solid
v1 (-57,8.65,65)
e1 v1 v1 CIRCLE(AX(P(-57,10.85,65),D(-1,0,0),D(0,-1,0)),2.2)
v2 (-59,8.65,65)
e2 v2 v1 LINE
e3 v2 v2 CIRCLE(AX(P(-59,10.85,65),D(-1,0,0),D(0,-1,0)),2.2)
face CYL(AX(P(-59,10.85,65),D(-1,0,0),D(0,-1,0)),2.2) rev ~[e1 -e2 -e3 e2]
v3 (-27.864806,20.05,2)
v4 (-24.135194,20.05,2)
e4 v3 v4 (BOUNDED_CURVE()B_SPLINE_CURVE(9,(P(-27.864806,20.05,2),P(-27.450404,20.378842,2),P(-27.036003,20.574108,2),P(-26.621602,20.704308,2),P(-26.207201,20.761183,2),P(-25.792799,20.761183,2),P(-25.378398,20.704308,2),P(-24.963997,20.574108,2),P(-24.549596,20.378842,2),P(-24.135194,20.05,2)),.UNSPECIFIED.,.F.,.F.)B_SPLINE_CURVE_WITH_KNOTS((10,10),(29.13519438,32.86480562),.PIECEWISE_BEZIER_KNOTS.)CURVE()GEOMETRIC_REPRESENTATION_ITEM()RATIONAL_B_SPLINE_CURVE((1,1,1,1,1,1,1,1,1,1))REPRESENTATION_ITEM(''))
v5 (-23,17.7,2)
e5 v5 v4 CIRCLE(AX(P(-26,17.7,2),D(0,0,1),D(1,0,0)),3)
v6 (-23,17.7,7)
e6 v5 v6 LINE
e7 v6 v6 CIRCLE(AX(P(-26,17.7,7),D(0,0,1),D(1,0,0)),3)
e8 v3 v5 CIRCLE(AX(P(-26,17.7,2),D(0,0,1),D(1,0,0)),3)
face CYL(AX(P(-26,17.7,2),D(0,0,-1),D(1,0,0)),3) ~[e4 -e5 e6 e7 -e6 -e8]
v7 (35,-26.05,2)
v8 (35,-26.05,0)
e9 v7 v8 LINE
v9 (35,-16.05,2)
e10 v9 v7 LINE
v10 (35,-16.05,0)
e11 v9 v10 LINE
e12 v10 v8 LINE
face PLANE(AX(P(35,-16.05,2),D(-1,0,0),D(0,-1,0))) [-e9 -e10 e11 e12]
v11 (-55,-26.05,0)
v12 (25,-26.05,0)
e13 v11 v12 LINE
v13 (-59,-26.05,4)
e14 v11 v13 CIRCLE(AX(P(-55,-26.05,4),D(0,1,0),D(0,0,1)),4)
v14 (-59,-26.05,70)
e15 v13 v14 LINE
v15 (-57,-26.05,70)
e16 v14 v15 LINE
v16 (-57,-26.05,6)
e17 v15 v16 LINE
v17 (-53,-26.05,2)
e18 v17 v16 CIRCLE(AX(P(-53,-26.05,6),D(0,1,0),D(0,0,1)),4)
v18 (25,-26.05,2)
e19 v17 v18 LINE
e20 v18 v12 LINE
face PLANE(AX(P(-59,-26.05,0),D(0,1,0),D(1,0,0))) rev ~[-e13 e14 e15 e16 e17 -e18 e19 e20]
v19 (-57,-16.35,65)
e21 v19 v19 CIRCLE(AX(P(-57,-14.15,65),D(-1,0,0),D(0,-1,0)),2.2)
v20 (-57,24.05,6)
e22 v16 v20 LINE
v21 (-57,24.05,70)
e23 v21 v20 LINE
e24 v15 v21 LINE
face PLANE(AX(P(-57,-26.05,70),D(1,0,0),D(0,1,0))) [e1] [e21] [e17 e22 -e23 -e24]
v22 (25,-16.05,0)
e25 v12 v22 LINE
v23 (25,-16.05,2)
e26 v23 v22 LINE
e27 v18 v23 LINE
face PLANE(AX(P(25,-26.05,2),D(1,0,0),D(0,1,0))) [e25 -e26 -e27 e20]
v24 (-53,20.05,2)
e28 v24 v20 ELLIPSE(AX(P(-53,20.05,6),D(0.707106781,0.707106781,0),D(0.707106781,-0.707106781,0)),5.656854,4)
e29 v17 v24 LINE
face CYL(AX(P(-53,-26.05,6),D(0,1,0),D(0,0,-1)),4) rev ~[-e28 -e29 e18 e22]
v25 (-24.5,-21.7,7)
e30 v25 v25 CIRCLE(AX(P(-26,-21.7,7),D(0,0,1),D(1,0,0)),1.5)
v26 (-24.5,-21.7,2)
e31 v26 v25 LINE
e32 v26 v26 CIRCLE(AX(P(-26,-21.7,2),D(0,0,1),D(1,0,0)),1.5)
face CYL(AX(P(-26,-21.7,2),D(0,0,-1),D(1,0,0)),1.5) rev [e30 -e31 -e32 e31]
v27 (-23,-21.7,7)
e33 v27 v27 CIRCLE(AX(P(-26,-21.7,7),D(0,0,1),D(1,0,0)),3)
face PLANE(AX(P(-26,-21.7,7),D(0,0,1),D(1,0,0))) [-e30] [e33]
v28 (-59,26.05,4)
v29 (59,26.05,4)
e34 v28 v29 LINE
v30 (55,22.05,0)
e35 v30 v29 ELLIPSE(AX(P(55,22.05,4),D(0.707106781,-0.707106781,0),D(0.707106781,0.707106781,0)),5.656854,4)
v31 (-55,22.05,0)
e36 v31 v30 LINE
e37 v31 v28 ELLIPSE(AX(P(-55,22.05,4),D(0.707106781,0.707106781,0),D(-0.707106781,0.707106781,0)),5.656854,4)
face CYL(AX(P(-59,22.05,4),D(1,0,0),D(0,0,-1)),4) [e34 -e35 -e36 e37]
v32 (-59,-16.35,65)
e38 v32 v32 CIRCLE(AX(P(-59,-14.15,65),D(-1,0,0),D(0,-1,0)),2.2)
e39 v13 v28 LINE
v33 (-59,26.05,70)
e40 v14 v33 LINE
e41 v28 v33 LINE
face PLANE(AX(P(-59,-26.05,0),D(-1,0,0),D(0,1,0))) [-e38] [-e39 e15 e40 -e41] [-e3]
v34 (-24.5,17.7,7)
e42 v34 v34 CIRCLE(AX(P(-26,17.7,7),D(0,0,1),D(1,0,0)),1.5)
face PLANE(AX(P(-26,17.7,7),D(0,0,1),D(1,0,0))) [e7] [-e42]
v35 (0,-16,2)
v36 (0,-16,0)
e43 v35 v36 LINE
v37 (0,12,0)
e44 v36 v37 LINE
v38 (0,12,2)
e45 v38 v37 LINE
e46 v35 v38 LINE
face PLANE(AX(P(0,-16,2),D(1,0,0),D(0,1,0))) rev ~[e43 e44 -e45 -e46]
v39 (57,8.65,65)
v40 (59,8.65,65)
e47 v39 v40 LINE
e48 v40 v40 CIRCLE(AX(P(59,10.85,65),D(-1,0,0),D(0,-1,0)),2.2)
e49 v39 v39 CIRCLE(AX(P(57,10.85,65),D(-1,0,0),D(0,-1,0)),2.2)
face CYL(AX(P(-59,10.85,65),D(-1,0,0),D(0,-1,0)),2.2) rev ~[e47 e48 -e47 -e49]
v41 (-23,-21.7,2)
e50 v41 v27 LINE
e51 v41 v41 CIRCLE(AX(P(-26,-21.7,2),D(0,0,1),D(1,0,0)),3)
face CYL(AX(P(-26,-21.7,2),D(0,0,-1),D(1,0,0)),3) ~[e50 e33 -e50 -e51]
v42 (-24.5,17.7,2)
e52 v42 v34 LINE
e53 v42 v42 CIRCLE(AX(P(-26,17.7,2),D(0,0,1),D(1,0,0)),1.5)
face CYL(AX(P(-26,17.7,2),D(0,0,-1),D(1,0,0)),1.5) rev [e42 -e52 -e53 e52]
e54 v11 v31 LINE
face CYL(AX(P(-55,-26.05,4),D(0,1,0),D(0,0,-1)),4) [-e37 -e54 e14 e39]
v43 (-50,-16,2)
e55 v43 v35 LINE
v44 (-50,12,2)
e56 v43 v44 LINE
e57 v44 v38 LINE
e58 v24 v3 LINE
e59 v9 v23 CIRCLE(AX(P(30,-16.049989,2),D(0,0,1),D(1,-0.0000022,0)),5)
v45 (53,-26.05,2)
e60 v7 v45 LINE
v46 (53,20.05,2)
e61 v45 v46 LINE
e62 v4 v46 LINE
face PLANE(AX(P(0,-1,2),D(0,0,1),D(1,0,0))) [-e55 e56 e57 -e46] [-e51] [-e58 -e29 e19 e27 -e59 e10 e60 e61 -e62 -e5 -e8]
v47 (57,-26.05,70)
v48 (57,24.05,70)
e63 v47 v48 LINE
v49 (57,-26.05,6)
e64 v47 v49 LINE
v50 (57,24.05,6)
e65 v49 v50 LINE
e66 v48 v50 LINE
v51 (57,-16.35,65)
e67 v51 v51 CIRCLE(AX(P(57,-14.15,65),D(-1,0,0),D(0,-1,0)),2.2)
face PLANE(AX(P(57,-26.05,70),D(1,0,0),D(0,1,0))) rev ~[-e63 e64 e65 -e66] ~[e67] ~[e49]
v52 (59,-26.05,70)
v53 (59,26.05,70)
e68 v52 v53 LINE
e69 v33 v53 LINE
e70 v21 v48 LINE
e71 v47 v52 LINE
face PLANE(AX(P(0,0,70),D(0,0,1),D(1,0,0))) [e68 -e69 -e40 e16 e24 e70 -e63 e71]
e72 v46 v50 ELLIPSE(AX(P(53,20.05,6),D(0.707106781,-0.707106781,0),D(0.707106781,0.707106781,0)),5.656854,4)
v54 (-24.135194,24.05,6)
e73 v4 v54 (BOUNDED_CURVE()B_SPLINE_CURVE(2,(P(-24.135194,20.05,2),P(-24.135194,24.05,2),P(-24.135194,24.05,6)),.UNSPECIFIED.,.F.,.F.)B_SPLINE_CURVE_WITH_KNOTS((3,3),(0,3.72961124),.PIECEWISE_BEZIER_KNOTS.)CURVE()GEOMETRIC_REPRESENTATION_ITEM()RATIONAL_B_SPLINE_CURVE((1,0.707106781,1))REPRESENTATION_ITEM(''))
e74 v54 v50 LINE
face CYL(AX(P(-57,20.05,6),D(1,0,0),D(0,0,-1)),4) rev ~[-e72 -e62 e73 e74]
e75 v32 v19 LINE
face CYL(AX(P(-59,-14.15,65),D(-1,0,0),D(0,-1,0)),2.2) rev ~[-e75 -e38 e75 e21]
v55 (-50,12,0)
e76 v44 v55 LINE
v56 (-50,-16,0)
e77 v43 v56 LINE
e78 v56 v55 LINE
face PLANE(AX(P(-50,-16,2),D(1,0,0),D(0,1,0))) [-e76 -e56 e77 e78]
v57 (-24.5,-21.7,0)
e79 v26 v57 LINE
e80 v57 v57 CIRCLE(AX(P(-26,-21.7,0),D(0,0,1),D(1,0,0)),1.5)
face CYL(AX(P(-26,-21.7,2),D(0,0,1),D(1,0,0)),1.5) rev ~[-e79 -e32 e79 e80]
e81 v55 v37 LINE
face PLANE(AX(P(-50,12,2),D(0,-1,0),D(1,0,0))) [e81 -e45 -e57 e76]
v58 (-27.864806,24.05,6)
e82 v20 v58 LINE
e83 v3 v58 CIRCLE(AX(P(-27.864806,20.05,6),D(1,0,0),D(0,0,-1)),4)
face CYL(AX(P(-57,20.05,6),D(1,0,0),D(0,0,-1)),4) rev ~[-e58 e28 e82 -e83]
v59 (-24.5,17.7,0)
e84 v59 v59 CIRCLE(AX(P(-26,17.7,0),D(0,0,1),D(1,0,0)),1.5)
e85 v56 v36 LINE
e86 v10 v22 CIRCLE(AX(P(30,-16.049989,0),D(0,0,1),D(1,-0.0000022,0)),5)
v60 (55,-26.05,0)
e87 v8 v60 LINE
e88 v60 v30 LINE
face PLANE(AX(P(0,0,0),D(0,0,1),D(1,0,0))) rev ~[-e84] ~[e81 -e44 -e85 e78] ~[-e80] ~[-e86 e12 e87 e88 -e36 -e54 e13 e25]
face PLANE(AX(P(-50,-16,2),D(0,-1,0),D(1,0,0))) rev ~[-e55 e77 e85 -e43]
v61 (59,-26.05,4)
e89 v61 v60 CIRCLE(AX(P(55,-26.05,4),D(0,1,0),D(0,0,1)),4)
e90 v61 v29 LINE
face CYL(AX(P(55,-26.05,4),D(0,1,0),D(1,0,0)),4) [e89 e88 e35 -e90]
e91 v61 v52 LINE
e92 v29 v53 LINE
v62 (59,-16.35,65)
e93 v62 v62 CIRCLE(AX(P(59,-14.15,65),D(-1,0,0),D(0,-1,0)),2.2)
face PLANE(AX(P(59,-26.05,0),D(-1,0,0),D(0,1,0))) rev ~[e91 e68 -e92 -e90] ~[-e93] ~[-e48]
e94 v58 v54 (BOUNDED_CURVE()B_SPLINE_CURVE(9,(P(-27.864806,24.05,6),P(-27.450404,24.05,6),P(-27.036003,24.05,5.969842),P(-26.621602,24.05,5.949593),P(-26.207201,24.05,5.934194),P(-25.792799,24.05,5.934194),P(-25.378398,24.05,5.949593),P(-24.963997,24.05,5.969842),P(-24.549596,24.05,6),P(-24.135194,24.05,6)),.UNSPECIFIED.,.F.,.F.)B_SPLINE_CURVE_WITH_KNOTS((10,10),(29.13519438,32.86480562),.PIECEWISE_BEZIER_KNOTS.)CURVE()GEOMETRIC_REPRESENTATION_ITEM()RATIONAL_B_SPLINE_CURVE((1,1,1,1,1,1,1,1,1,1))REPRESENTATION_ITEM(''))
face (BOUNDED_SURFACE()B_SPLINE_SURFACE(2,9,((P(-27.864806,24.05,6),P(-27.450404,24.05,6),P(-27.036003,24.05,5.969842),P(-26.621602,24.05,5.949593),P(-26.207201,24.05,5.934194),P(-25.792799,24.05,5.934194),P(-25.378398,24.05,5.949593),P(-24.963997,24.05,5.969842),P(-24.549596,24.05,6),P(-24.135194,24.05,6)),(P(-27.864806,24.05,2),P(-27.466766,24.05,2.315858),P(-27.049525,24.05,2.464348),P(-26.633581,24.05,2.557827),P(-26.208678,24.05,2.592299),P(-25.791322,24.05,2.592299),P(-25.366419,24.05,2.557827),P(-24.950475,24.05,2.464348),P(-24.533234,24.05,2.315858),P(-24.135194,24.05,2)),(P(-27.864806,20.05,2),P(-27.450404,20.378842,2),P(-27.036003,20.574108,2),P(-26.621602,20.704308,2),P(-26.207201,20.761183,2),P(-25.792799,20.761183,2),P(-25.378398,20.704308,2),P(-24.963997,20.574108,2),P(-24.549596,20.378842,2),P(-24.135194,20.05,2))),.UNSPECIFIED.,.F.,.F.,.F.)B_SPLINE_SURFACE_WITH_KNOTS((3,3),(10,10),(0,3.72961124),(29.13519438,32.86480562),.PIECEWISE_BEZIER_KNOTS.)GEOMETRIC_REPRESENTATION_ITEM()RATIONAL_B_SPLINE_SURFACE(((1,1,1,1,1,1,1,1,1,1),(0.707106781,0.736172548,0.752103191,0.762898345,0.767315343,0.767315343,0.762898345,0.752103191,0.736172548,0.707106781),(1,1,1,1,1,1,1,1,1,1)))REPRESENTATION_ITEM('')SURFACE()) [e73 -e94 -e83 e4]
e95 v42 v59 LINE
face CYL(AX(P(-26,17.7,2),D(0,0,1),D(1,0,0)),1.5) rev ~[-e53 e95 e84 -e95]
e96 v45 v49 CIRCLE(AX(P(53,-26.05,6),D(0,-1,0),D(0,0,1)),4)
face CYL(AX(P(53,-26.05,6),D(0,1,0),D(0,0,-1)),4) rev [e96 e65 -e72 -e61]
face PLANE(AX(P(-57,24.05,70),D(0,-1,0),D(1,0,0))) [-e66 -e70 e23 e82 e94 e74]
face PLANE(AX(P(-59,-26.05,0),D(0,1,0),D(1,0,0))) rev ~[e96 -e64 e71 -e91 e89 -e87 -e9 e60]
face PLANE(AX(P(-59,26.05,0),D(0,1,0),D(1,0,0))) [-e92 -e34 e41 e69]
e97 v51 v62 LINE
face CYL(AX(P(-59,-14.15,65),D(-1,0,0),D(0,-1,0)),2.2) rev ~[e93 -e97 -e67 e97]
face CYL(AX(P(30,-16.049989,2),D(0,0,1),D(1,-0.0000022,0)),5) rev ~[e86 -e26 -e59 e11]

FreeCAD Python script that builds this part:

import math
import FreeCAD as App
import Part
import Sketcher

V = App.Vector
Q = App.Units.Quantity


def edges_at(feature, points):
    """Names of the edges that pass closest to the given points."""
    edges = feature.Shape.Edges
    near = lambda p: min(range(len(edges)), key=lambda i: edges[i].distToShape(Part.Vertex(*p))[0])
    return sorted({f"Edge{near(p) + 1}" for p in points})


def add_polygon(sketch, points):
    """Adds a closed chain of lines whose ends are joined by coincident constraints."""
    first, n = sketch.GeometryCount, len(points)
    for a, b in zip(points, points[1:] + points[:1]):
        sketch.addGeometry(Part.LineSegment(App.Vector(*a, 0), App.Vector(*b, 0)), False)
    for i in range(n):
        sketch.addConstraint(Sketcher.Constraint("Coincident", first + i, 2, first + (i + 1) % n, 1))

doc = App.newDocument("Part")
params = doc.addObject("Spreadsheet::Sheet", "Params")
for row, (alias, value) in enumerate([
    ("sketch1_width", "118 mm"),
    ("sketch1_height", "52.1 mm"),
    ("pad1_length", "70 mm"),
    ("sketch2_width", "114 mm"),
    ("sketch2_height", "50.1 mm"),
    ("pocket1_length", "68 mm"),
    ("sketch3_width", "50 mm"),
    ("sketch3_height", "28 mm"),
    ("sketch4_diameter", "3 mm"),
    ("sketch5_diameter", "6 mm"),
    ("sketch5_diameter2", "3 mm"),
    ("pad2_length", "5 mm"),
    ("sketch6_diameter", "4.4 mm"),
    ("sketch7_radius", "5 mm"),
    ("fillet_radius", "4 mm"),
    ("fillet2_radius", "4 mm"),
], start=1):
    params.set(f"A{row}", alias)
    params.set(f"B{row}", "=" + value)
    params.setAlias(f"B{row}", alias)

body = doc.addObject("PartDesign::Body", "Body")

# Sketch on XY plane
sketch1 = doc.addObject("Sketcher::SketchObject", "Sketch")
body.addObject(sketch1)
sketch1.AttachmentSupport = (doc.XY_Plane, [""])
sketch1.MapMode = "FlatFace"
add_polygon(sketch1, [(-59, 26), (-59, -26), (59, -26), (59, 26)])  # lines 0-3
sketch1.addConstraint([
    Sketcher.Constraint("Vertical", 0),
    Sketcher.Constraint("Horizontal", 1),
    Sketcher.Constraint("Vertical", 2),
    Sketcher.Constraint("Horizontal", 3),
    Sketcher.Constraint("Symmetric", 0, 2, 2, 2, -1, 1),
    Sketcher.Constraint("DistanceX", 1, 1, 1, 2, Q("118 mm")),
    Sketcher.Constraint("DistanceY", 0, 2, 0, 1, Q("52.1 mm")),
])
sketch1.setExpression("Constraints[9]", "Params.sketch1_width")
sketch1.setExpression("Constraints[10]", "Params.sketch1_height")
pad1 = doc.addObject("PartDesign::Pad", "Pad")
body.addObject(pad1)
pad1.Profile = sketch1
pad1.setExpression("Length", "Params.pad1_length")

# Sketch on XY plane
sketch2 = doc.addObject("Sketcher::SketchObject", "Sketch001")
body.addObject(sketch2)
sketch2.AttachmentSupport = (doc.XY_Plane, [""])
sketch2.MapMode = "FlatFace"
sketch2.AttachmentOffset = App.Placement(V(0, 0, 70), App.Rotation())
add_polygon(sketch2, [(-57, 24), (-57, -26), (57, -26), (57, 24)])  # lines 0-3
sketch2.addConstraint([
    Sketcher.Constraint("Vertical", 0),
    Sketcher.Constraint("Horizontal", 1),
    Sketcher.Constraint("Vertical", 2),
    Sketcher.Constraint("Horizontal", 3),
    Sketcher.Constraint("DistanceX", 1, 1, 1, 2, Q("114 mm")),
    Sketcher.Constraint("DistanceY", 0, 2, 0, 1, Q("50.1 mm")),
    Sketcher.Constraint("DistanceX", 0, 2, -1, 1, Q("57 mm")),
    Sketcher.Constraint("DistanceY", 0, 2, -1, 1, Q("26.05 mm")),
])
sketch2.setExpression("Constraints[8]", "Params.sketch2_width")
sketch2.setExpression("Constraints[9]", "Params.sketch2_height")
pocket1 = doc.addObject("PartDesign::Pocket", "Pocket")
body.addObject(pocket1)
pocket1.Profile = sketch2
pocket1.setExpression("Length", "Params.pocket1_length")

# Sketch on XY plane
sketch3 = doc.addObject("Sketcher::SketchObject", "Sketch002")
body.addObject(sketch3)
sketch3.AttachmentSupport = (doc.XY_Plane, [""])
sketch3.MapMode = "FlatFace"
sketch3.AttachmentOffset = App.Placement(V(0, 0, 2), App.Rotation())
add_polygon(sketch3, [(-50, 12), (-50, -16), (0, -16), (0, 12)])  # lines 0-3
sketch3.addConstraint([
    Sketcher.Constraint("Vertical", 0),
    Sketcher.Constraint("Horizontal", 1),
    Sketcher.Constraint("Vertical", 2),
    Sketcher.Constraint("Horizontal", 3),
    Sketcher.Constraint("PointOnObject", 1, 2, -2),
    Sketcher.Constraint("DistanceX", 1, 1, 1, 2, Q("50 mm")),
    Sketcher.Constraint("DistanceY", 0, 2, 0, 1, Q("28 mm")),
    Sketcher.Constraint("DistanceY", 0, 2, -1, 1, Q("16 mm")),
])
sketch3.setExpression("Constraints[9]", "Params.sketch3_width")
sketch3.setExpression("Constraints[10]", "Params.sketch3_height")
pocket2 = doc.addObject("PartDesign::Pocket", "Pocket001")
body.addObject(pocket2)
pocket2.Profile = sketch3
pocket2.Type = "ThroughAll"

# Sketch on XY plane
sketch4 = doc.addObject("Sketcher::SketchObject", "Sketch003")
body.addObject(sketch4)
sketch4.AttachmentSupport = (doc.XY_Plane, [""])
sketch4.MapMode = "FlatFace"
sketch4.AttachmentOffset = App.Placement(V(0, 0, 2), App.Rotation())
sketch4.addGeometry([
    Part.Circle(V(-26, 17.7, 0), V(0, 0, 1), 1.5),
    Part.Circle(V(-26, -21.7, 0), V(0, 0, 1), 1.5),
], False)
sketch4.addConstraint([
    Sketcher.Constraint("Equal", 0, 1),
    Sketcher.Constraint("Vertical", 0, 3, 1, 3),
    Sketcher.Constraint("Diameter", 0, Q("3 mm")),
    Sketcher.Constraint("DistanceX", 0, 3, -1, 1, Q("26 mm")),
    Sketcher.Constraint("DistanceY", -1, 1, 0, 3, Q("17.7 mm")),
    Sketcher.Constraint("DistanceY", 1, 3, -1, 1, Q("21.7 mm")),
])
sketch4.setExpression("Constraints[2]", "Params.sketch4_diameter")
pocket3 = doc.addObject("PartDesign::Pocket", "Pocket002")
body.addObject(pocket3)
pocket3.Profile = sketch4
pocket3.Type = "ThroughAll"

# Sketch on XY plane
sketch5 = doc.addObject("Sketcher::SketchObject", "Sketch004")
body.addObject(sketch5)
sketch5.AttachmentSupport = (doc.XY_Plane, [""])
sketch5.MapMode = "FlatFace"
sketch5.AttachmentOffset = App.Placement(V(0, 0, 2), App.Rotation())
sketch5.addGeometry([
    Part.Circle(V(-26, 17.7, 0), V(0, 0, 1), 3),
    Part.Circle(V(-26, 17.7, 0), V(0, 0, 1), 1.5),
    Part.Circle(V(-26, -21.7, 0), V(0, 0, 1), 3),
    Part.Circle(V(-26, -21.7, 0), V(0, 0, 1), 1.5),
], False)
sketch5.addConstraint([
    Sketcher.Constraint("Coincident", 1, 3, 0, 3),
    Sketcher.Constraint("Coincident", 3, 3, 2, 3),
    Sketcher.Constraint("Equal", 0, 2),
    Sketcher.Constraint("Equal", 1, 3),
    Sketcher.Constraint("Vertical", 1, 3, 2, 3),
    Sketcher.Constraint("Diameter", 0, Q("6 mm")),
    Sketcher.Constraint("Diameter", 1, Q("3 mm")),
    Sketcher.Constraint("DistanceX", 0, 3, -1, 1, Q("26 mm")),
    Sketcher.Constraint("DistanceY", -1, 1, 0, 3, Q("17.7 mm")),
    Sketcher.Constraint("DistanceY", 2, 3, -1, 1, Q("21.7 mm")),
])
sketch5.setExpression("Constraints[5]", "Params.sketch5_diameter")
sketch5.setExpression("Constraints[6]", "Params.sketch5_diameter2")
pad2 = doc.addObject("PartDesign::Pad", "Pad001")
body.addObject(pad2)
pad2.Profile = sketch5
pad2.setExpression("Length", "Params.pad2_length")

# Sketch on YZ plane
sketch6 = doc.addObject("Sketcher::SketchObject", "Sketch005")
body.addObject(sketch6)
sketch6.AttachmentSupport = (doc.YZ_Plane, [""])
sketch6.MapMode = "FlatFace"
sketch6.AttachmentOffset = App.Placement(V(0, 0, -59), App.Rotation())
sketch6.addGeometry([
    Part.Circle(V(10.8, 65, 0), V(0, 0, 1), 2.2),
    Part.Circle(V(-14.2, 65, 0), V(0, 0, 1), 2.2),
], False)
sketch6.addConstraint([
    Sketcher.Constraint("Equal", 0, 1),
    Sketcher.Constraint("Horizontal", 0, 3, 1, 3),
    Sketcher.Constraint("Diameter", 0, Q("4.4 mm")),
    Sketcher.Constraint("DistanceY", -1, 1, 0, 3, Q("65 mm")),
    Sketcher.Constraint("DistanceX", 1, 3, 0, 3, Q("25 mm")),
    Sketcher.Constraint("DistanceX", -1, 1, 0, 3, Q("10.85 mm")),
])
sketch6.setExpression("Constraints[2]", "Params.sketch6_diameter")
pocket4 = doc.addObject("PartDesign::Pocket", "Pocket003")
body.addObject(pocket4)
pocket4.Profile = sketch6
pocket4.Type = "ThroughAll"
pocket4.Reversed = True

# Sketch on XY plane
sketch7 = doc.addObject("Sketcher::SketchObject", "Sketch006")
body.addObject(sketch7)
sketch7.AttachmentSupport = (doc.XY_Plane, [""])
sketch7.MapMode = "FlatFace"
sketch7.AttachmentOffset = App.Placement(V(0, 0, 2), App.Rotation())
sketch7.addGeometry([
    Part.LineSegment(V(35, -26, 0), V(35, -16, 0)),
    Part.ArcOfCircle(Part.Circle(V(30, -16, 0), V(0, 0, 1), 5), math.radians(0), math.radians(180)),
    Part.LineSegment(V(25, -16, 0), V(25, -26, 0)),
    Part.LineSegment(V(25, -26, 0), V(35, -26, 0)),
], False)
sketch7.addConstraint([
    Sketcher.Constraint("Coincident", 0, 2, 1, 1),
    Sketcher.Constraint("Coincident", 1, 2, 2, 1),
    Sketcher.Constraint("Coincident", 2, 2, 3, 1),
    Sketcher.Constraint("Coincident", 3, 2, 0, 1),
    Sketcher.Constraint("Vertical", 0),
    Sketcher.Constraint("Vertical", 2),
    Sketcher.Constraint("Horizontal", 3),
    Sketcher.Constraint("Horizontal", 0, 2, 1, 2),
    Sketcher.Constraint("Equal", 3, 0),
    Sketcher.Constraint("Radius", 1, Q("5 mm")),
    Sketcher.Constraint("DistanceX", -1, 1, 1, 3, Q("30 mm")),
    Sketcher.Constraint("DistanceY", 0, 2, -1, 1, Q("16.05 mm")),
    Sketcher.Constraint("DistanceY", 1, 3, -1, 1, Q("16.049989 mm")),
])
sketch7.setExpression("Constraints[9]", "Params.sketch7_radius")
pocket5 = doc.addObject("PartDesign::Pocket", "Pocket004")
body.addObject(pocket5)
pocket5.Profile = sketch7
pocket5.Type = "ThroughAll"
doc.recompute()

fillet = doc.addObject("PartDesign::Fillet", "Fillet")
body.addObject(fillet)
fillet.Base = (pocket5, edges_at(pocket5, [(0, 24.05, 2), (-57, -1, 2), (57, -1, 2)]))
fillet.setExpression("Radius", "Params.fillet_radius")
doc.recompute()

fillet2 = doc.addObject("PartDesign::Fillet", "Fillet001")
body.addObject(fillet2)
fillet2.Base = (fillet, edges_at(fillet, [(-59, 0, 0), (0, 26.05, 0), (59, 0, 0)]))
fillet2.setExpression("Radius", "Params.fillet2_radius")

doc.recompute()
